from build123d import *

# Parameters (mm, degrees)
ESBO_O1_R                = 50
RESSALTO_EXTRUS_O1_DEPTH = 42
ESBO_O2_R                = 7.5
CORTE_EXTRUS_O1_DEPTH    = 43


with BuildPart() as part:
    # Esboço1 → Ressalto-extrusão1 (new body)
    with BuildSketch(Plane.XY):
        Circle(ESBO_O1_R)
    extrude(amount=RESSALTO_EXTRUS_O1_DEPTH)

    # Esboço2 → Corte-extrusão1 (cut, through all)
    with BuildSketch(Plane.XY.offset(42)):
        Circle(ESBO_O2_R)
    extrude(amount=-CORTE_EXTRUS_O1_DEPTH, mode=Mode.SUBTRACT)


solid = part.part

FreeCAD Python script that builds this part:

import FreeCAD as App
import Part
import Sketcher
from FreeCAD import Vector
Q = App.Units.Quantity

doc = App.newDocument("Part")
body = doc.addObject("PartDesign::Body", "Body")

# Sketch on XY plane
sketch1 = doc.addObject("Sketcher::SketchObject", "Sketch")
body.addObject(sketch1)
sketch1.AttachmentSupport = (doc.XY_Plane, [""])
sketch1.MapMode = "FlatFace"
sketch1.addGeometry(Part.Circle(Vector(0, 0, 0), Vector(0, 0, 1), 50), False)
sketch1.addConstraint([
    Sketcher.Constraint("Coincident", 0, 3, -1, 1),
    Sketcher.Constraint("Diameter", 0, Q("100 mm")),
])
pad1 = doc.addObject("PartDesign::Pad", "Pad")
body.addObject(pad1)
pad1.Profile = sketch1
pad1.Length = 42

# Sketch on XY plane
sketch2 = doc.addObject("Sketcher::SketchObject", "Sketch001")
body.addObject(sketch2)
sketch2.AttachmentSupport = (doc.XY_Plane, [""])
sketch2.MapMode = "FlatFace"
sketch2.AttachmentOffset = App.Placement(Vector(0, 0, 42), App.Rotation())
sketch2.addGeometry(Part.Circle(Vector(0, 0, 0), Vector(0, 0, 1), 8), False)
sketch2.addConstraint([
    Sketcher.Constraint("Coincident", 0, 3, -1, 1),
    Sketcher.Constraint("Diameter", 0, Q("15 mm")),
])
pocket1 = doc.addObject("PartDesign::Pocket", "Pocket")
body.addObject(pocket1)
pocket1.Profile = sketch2
pocket1.Type = "ThroughAll"

doc.recompute()
